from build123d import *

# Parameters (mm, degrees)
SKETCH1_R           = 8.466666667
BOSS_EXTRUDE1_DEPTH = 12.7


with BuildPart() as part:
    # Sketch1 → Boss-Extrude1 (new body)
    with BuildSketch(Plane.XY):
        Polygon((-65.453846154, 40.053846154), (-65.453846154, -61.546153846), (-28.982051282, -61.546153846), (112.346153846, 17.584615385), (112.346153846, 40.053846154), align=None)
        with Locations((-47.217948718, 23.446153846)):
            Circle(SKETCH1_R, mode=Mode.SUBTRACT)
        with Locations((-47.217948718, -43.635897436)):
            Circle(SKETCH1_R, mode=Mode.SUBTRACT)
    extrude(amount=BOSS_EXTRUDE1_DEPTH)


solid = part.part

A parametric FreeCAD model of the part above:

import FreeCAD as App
import Part
import Sketcher

V = App.Vector
Q = App.Units.Quantity


def add_polygon(sketch, points):
    """Adds a closed chain of lines whose ends are joined by coincident constraints."""
    first, n = sketch.GeometryCount, len(points)
    for a, b in zip(points, points[1:] + points[:1]):
        sketch.addGeometry(Part.LineSegment(App.Vector(*a, 0), App.Vector(*b, 0)), False)
    for i in range(n):
        sketch.addConstraint(Sketcher.Constraint("Coincident", first + i, 2, first + (i + 1) % n, 1))

doc = App.newDocument("Part")
params = doc.addObject("Spreadsheet::Sheet", "Params")
for row, (alias, value) in enumerate([
    ("sketch1_width", "7 in"),
    ("sketch1_height", "4 in"),
    ("pad1_length", "0.5 in"),
], start=1):
    params.set(f"A{row}", alias)
    params.set(f"B{row}", "=" + value)
    params.setAlias(f"B{row}", alias)

body = doc.addObject("PartDesign::Body", "Body")

# Sketch on XY plane
sketch1 = body.newObject("Sketcher::SketchObject", "Sketch")
sketch1.AttachmentSupport = (doc.getObject("XY_Plane"), [""])
sketch1.MapMode = "FlatFace"
add_polygon(sketch1, [(-65, 40), (-65, -62), (-29, -62), (112, 18), (112, 40)])  # lines 0-4
sketch1.addGeometry(Part.Circle(V(-47, -44, 0), V(0, 0, 1), 8), False)  # 5
sketch1.addGeometry(Part.Circle(V(-47, 23, 0), V(0, 0, 1), 8), False)  # 6
sketch1.addConstraint([
    Sketcher.Constraint("Vertical", 0),
    Sketcher.Constraint("Horizontal", 1),
    Sketcher.Constraint("Vertical", 3),
    Sketcher.Constraint("Horizontal", 4),
    Sketcher.Constraint("Equal", 5, 6),
    Sketcher.Constraint("Vertical", 5, 3, 6, 3),
    Sketcher.Constraint("DistanceX", 4, 2, 4, 1, Q("7 in")),
    Sketcher.Constraint("DistanceY", 0, 2, 0, 1, Q("4 in")),
    Sketcher.Constraint("Diameter", 5, Q("16.933333 mm")),
    Sketcher.Constraint("DistanceY", 3, 1, 3, 2, Q("22.469231 mm")),
    Sketcher.Constraint("Distance", 2, Q("161.97327 mm")),
    Sketcher.Constraint("DistanceX", 5, 3, -1, 1, Q("47.217949 mm")),
    Sketcher.Constraint("DistanceX", 1, 2, -1, 1, Q("28.982051 mm")),
    Sketcher.Constraint("DistanceY", 5, 3, 6, 3, Q("67.082051 mm")),
    Sketcher.Constraint("DistanceY", 2, 2, 6, 3, Q("5.861538 mm")),
    Sketcher.Constraint("DistanceY", 5, 3, -1, 1, Q("43.635897 mm")),
])
sketch1.setExpression("Constraints[11]", "Params.sketch1_width")
sketch1.setExpression("Constraints[12]", "Params.sketch1_height")
pad1 = body.newObject("PartDesign::Pad", "Pad")
pad1.Profile = sketch1
pad1.setExpression("Length", "Params.pad1_length")

doc.recompute()
